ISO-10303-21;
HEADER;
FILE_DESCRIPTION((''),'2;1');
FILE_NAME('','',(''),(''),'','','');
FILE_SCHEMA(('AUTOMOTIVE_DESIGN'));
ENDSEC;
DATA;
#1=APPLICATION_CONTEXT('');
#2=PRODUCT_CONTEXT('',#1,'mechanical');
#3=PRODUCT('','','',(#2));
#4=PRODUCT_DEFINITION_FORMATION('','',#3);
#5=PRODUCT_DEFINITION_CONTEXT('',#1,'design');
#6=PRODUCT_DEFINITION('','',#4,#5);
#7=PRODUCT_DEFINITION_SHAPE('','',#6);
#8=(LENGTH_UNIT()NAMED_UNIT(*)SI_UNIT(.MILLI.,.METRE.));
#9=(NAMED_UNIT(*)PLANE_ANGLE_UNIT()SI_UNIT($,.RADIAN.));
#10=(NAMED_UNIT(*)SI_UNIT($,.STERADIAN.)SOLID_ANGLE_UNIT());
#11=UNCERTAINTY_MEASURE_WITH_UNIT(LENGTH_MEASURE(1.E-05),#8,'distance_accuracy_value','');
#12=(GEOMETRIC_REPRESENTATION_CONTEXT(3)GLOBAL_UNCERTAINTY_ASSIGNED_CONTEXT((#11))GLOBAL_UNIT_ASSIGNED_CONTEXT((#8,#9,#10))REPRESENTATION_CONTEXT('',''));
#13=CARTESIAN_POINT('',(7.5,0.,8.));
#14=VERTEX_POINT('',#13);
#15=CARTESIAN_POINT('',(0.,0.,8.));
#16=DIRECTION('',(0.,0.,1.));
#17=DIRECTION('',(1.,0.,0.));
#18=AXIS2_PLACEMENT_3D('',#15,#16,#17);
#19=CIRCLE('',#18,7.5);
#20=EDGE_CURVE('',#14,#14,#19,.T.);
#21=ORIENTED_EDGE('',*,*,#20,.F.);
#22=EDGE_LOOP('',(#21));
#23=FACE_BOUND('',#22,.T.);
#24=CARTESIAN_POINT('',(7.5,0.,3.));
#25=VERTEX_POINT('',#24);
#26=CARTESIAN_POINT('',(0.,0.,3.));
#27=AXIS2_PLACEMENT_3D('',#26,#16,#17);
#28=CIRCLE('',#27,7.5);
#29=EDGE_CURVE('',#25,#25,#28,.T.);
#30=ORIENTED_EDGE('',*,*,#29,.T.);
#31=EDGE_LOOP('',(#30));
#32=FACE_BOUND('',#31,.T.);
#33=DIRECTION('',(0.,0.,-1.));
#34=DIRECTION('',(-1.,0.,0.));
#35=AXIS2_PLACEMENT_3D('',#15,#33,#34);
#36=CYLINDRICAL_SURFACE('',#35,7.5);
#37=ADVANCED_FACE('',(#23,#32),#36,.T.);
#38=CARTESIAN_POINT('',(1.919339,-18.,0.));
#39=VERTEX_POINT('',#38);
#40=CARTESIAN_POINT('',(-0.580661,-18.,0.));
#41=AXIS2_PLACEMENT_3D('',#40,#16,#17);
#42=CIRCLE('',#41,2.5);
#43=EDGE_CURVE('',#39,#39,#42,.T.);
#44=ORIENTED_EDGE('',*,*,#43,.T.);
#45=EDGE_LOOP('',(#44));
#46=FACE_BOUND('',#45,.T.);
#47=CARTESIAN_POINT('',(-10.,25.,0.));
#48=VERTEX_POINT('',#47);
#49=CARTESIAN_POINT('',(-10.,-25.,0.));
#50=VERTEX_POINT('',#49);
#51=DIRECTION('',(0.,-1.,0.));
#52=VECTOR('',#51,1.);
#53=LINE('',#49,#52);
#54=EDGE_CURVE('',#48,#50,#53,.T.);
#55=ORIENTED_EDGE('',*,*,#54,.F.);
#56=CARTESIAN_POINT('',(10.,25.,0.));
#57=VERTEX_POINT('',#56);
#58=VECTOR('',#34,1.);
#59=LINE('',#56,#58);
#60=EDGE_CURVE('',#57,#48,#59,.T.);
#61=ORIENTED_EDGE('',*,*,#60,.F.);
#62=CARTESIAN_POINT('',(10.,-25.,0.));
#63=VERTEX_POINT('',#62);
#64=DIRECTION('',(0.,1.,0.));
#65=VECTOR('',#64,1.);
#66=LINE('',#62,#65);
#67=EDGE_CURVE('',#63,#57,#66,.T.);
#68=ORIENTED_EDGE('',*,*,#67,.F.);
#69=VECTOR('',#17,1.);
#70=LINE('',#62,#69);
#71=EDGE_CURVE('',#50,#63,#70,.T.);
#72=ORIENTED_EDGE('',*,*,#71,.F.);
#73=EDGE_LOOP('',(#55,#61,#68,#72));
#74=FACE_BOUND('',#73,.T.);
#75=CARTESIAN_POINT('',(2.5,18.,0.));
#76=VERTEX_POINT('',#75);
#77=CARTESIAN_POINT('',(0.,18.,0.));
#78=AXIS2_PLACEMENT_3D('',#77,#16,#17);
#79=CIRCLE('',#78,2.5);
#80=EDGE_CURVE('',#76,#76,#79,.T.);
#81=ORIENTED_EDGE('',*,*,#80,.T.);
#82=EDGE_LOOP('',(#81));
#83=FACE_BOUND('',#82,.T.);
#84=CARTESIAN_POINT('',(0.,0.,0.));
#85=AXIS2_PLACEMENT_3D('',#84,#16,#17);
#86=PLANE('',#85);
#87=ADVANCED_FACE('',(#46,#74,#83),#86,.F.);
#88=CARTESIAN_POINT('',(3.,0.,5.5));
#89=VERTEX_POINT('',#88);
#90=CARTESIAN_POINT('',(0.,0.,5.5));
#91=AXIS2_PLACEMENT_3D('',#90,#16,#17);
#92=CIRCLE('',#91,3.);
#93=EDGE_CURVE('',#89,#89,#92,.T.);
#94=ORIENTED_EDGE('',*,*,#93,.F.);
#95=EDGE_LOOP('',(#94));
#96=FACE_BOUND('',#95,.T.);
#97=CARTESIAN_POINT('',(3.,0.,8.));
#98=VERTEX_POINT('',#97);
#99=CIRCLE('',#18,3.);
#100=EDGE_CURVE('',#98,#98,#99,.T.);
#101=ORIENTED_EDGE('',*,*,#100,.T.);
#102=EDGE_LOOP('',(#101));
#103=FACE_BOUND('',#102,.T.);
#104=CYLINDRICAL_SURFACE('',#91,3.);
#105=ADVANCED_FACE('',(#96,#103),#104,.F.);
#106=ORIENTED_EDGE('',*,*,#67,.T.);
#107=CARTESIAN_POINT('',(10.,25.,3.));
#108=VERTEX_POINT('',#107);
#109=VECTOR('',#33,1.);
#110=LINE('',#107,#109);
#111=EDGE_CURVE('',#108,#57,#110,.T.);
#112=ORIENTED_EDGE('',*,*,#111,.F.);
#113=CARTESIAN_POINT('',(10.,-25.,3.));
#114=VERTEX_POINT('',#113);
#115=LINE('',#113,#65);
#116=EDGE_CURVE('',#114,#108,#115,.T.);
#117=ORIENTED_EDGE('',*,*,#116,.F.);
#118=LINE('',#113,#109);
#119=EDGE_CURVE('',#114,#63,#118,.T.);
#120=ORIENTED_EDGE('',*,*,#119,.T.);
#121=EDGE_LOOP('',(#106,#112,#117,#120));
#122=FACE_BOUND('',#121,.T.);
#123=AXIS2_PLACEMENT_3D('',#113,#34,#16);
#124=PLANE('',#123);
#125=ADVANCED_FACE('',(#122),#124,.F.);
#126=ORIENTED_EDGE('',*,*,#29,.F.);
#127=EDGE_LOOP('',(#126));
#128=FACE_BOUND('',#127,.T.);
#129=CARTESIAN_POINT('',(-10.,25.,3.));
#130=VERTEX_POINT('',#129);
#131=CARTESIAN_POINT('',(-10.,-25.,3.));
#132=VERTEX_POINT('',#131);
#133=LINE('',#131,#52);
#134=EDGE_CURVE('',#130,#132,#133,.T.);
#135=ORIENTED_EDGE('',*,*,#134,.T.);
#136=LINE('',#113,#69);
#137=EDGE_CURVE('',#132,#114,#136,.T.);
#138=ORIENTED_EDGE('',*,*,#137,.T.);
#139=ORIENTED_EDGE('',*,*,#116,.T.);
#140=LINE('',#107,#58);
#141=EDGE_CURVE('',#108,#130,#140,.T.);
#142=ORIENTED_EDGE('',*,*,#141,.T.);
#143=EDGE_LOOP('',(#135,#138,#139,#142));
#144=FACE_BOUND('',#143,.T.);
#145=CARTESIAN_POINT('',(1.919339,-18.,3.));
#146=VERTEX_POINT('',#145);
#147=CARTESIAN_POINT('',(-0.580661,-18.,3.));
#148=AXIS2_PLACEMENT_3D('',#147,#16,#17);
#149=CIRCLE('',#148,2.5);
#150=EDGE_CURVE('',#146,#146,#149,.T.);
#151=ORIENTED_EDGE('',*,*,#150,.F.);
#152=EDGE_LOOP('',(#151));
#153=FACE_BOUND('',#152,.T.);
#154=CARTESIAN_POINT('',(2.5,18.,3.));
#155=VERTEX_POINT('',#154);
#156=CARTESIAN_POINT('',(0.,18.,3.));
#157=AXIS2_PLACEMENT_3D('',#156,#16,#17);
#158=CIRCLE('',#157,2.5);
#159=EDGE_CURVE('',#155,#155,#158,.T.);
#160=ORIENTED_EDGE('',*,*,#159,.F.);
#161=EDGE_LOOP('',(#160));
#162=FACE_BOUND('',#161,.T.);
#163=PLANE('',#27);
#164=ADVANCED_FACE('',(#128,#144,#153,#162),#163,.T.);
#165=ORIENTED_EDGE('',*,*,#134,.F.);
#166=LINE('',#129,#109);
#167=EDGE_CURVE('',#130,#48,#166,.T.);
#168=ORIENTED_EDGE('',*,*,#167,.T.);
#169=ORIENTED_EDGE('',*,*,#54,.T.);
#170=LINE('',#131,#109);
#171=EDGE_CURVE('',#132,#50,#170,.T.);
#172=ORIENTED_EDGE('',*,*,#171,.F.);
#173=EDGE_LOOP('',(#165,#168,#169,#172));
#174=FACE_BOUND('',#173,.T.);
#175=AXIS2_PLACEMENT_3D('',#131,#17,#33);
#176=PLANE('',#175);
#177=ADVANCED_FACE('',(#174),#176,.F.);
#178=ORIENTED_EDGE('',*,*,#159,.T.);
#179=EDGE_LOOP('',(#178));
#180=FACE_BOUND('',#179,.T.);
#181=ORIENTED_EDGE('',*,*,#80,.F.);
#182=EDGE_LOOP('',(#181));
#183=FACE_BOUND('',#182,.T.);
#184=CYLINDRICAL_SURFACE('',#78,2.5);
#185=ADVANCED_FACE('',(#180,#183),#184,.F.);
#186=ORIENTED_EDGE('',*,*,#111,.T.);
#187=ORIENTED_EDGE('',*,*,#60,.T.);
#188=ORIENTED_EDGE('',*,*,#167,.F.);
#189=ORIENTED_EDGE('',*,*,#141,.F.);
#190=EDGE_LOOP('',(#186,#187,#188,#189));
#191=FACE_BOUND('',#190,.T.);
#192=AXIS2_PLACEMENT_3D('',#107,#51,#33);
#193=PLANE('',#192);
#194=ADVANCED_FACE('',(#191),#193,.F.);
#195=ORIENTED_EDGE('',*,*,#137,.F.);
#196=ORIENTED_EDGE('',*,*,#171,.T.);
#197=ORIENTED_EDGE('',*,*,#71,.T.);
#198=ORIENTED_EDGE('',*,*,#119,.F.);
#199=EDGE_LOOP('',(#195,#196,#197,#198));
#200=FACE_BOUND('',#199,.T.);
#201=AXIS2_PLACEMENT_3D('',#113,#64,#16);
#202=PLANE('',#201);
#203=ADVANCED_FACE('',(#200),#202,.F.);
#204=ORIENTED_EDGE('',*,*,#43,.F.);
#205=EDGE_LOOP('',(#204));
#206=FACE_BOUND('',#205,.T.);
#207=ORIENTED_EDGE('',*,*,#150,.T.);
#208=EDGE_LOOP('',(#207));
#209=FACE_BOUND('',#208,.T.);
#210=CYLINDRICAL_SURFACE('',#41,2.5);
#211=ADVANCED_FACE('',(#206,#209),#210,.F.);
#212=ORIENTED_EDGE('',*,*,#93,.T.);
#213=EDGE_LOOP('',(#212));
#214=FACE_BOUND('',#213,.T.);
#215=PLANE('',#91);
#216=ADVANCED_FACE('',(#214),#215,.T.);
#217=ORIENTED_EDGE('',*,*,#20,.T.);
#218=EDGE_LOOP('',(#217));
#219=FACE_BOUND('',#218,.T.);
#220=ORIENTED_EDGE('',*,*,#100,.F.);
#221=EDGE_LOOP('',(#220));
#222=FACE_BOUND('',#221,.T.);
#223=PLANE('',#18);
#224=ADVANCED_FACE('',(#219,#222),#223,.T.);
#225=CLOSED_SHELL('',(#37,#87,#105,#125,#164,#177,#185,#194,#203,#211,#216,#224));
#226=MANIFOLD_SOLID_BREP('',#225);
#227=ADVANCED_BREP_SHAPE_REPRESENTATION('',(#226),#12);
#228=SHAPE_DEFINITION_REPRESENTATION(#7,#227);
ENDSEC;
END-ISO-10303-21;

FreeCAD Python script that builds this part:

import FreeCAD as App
import Part
import Sketcher
Q = App.Units.Quantity

doc = App.newDocument("Part")
params = doc.addObject("Spreadsheet::Sheet", "Params")
for row, (alias, value) in enumerate([
    ("sketch1_width", "20 mm"),
    ("sketch1_height", "50 mm"),
    ("pad1_length", "3 mm"),
    ("sketch2_diameter", "15 mm"),
    ("pad2_length", "5 mm"),
    ("sketch3_diameter", "6 mm"),
    ("pocket1_length", "2.5 mm"),
    ("sketch4_diameter", "5 mm"),
    ("pocket2_length", "3 mm"),
], start=1):
    params.set(f"A{row}", alias)
    params.set(f"B{row}", "=" + value)
    params.setAlias(f"B{row}", alias)

body = doc.addObject("PartDesign::Body", "Body")

# Sketch on XY plane
sketch1 = body.newObject("Sketcher::SketchObject", "Sketch")
sketch1.AttachmentSupport = (doc.getObject("XY_Plane"), [""])
sketch1.MapMode = "FlatFace"
sketch1.addGeometry([
    Part.LineSegment(App.Vector(-10, 25, 0), App.Vector(-10, -25, 0)),
    Part.LineSegment(App.Vector(-10, -25, 0), App.Vector(10, -25, 0)),
    Part.LineSegment(App.Vector(10, -25, 0), App.Vector(10, 25, 0)),
    Part.LineSegment(App.Vector(10, 25, 0), App.Vector(-10, 25, 0)),
], False)
sketch1.addConstraint([
    Sketcher.Constraint("Coincident", 0, 2, 1, 1),
    Sketcher.Constraint("Coincident", 1, 2, 2, 1),
    Sketcher.Constraint("Coincident", 2, 2, 3, 1),
    Sketcher.Constraint("Coincident", 3, 2, 0, 1),
    Sketcher.Constraint("Vertical", 0),
    Sketcher.Constraint("Horizontal", 1),
    Sketcher.Constraint("Vertical", 2),
    Sketcher.Constraint("Horizontal", 3),
    Sketcher.Constraint("Symmetric", 0, 2, 2, 2, -1, 1),
    Sketcher.Constraint("DistanceX", 1, 1, 1, 2, Q("20 mm")),
    Sketcher.Constraint("DistanceY", 0, 2, 0, 1, Q("50 mm")),
])
sketch1.setExpression("Constraints[9]", "Params.sketch1_width")
sketch1.setExpression("Constraints[10]", "Params.sketch1_height")
pad1 = body.newObject("PartDesign::Pad", "Pad")
pad1.Profile = sketch1
pad1.setExpression("Length", "Params.pad1_length")

# Sketch on XY plane
sketch2 = body.newObject("Sketcher::SketchObject", "Sketch001")
sketch2.AttachmentSupport = (doc.getObject("XY_Plane"), [""])
sketch2.MapMode = "FlatFace"
sketch2.AttachmentOffset = App.Placement(App.Vector(0, 0, 3), App.Rotation())
sketch2.addGeometry(Part.Circle(App.Vector(0, 0, 0), App.Vector(0, 0, 1), 8), False)
sketch2.addConstraint([
    Sketcher.Constraint("Coincident", 0, 3, -1, 1),
    Sketcher.Constraint("Diameter", 0, Q("15 mm")),
])
sketch2.setExpression("Constraints[1]", "Params.sketch2_diameter")
pad2 = body.newObject("PartDesign::Pad", "Pad001")
pad2.Profile = sketch2
pad2.setExpression("Length", "Params.pad2_length")

# Sketch on XY plane
sketch3 = body.newObject("Sketcher::SketchObject", "Sketch002")
sketch3.AttachmentSupport = (doc.getObject("XY_Plane"), [""])
sketch3.MapMode = "FlatFace"
sketch3.AttachmentOffset = App.Placement(App.Vector(0, 0, 8), App.Rotation())
sketch3.addGeometry(Part.Circle(App.Vector(0, 0, 0), App.Vector(0, 0, 1), 3), False)
sketch3.addConstraint([
    Sketcher.Constraint("Coincident", 0, 3, -1, 1),
    Sketcher.Constraint("Diameter", 0, Q("6 mm")),
])
sketch3.setExpression("Constraints[1]", "Params.sketch3_diameter")
pocket1 = body.newObject("PartDesign::Pocket", "Pocket")
pocket1.Profile = sketch3
pocket1.setExpression("Length", "Params.pocket1_length")

# Sketch on XY plane
sketch4 = body.newObject("Sketcher::SketchObject", "Sketch003")
sketch4.AttachmentSupport = (doc.getObject("XY_Plane"), [""])
sketch4.MapMode = "FlatFace"
sketch4.AttachmentOffset = App.Placement(App.Vector(0, 0, 3), App.Rotation())
sketch4.addGeometry([
    Part.Circle(App.Vector(0, 18, 0), App.Vector(0, 0, 1), 2.5),
    Part.Circle(App.Vector(-0.6, -18, 0), App.Vector(0, 0, 1), 2.5),
], False)
sketch4.addConstraint([
    Sketcher.Constraint("Equal", 0, 1),
    Sketcher.Constraint("PointOnObject", 0, 3, -2),
    Sketcher.Constraint("Diameter", 0, Q("5 mm")),
    Sketcher.Constraint("DistanceY", -1, 1, 0, 3, Q("18 mm")),
    Sketcher.Constraint("DistanceY", 1, 3, -1, 1, Q("18 mm")),
    Sketcher.Constraint("DistanceX", 1, 3, -1, 1, Q("0.580661 mm")),
])
sketch4.setExpression("Constraints[2]", "Params.sketch4_diameter")
pocket2 = body.newObject("PartDesign::Pocket", "Pocket001")
pocket2.Profile = sketch4
pocket2.setExpression("Length", "Params.pocket2_length")

doc.recompute()
